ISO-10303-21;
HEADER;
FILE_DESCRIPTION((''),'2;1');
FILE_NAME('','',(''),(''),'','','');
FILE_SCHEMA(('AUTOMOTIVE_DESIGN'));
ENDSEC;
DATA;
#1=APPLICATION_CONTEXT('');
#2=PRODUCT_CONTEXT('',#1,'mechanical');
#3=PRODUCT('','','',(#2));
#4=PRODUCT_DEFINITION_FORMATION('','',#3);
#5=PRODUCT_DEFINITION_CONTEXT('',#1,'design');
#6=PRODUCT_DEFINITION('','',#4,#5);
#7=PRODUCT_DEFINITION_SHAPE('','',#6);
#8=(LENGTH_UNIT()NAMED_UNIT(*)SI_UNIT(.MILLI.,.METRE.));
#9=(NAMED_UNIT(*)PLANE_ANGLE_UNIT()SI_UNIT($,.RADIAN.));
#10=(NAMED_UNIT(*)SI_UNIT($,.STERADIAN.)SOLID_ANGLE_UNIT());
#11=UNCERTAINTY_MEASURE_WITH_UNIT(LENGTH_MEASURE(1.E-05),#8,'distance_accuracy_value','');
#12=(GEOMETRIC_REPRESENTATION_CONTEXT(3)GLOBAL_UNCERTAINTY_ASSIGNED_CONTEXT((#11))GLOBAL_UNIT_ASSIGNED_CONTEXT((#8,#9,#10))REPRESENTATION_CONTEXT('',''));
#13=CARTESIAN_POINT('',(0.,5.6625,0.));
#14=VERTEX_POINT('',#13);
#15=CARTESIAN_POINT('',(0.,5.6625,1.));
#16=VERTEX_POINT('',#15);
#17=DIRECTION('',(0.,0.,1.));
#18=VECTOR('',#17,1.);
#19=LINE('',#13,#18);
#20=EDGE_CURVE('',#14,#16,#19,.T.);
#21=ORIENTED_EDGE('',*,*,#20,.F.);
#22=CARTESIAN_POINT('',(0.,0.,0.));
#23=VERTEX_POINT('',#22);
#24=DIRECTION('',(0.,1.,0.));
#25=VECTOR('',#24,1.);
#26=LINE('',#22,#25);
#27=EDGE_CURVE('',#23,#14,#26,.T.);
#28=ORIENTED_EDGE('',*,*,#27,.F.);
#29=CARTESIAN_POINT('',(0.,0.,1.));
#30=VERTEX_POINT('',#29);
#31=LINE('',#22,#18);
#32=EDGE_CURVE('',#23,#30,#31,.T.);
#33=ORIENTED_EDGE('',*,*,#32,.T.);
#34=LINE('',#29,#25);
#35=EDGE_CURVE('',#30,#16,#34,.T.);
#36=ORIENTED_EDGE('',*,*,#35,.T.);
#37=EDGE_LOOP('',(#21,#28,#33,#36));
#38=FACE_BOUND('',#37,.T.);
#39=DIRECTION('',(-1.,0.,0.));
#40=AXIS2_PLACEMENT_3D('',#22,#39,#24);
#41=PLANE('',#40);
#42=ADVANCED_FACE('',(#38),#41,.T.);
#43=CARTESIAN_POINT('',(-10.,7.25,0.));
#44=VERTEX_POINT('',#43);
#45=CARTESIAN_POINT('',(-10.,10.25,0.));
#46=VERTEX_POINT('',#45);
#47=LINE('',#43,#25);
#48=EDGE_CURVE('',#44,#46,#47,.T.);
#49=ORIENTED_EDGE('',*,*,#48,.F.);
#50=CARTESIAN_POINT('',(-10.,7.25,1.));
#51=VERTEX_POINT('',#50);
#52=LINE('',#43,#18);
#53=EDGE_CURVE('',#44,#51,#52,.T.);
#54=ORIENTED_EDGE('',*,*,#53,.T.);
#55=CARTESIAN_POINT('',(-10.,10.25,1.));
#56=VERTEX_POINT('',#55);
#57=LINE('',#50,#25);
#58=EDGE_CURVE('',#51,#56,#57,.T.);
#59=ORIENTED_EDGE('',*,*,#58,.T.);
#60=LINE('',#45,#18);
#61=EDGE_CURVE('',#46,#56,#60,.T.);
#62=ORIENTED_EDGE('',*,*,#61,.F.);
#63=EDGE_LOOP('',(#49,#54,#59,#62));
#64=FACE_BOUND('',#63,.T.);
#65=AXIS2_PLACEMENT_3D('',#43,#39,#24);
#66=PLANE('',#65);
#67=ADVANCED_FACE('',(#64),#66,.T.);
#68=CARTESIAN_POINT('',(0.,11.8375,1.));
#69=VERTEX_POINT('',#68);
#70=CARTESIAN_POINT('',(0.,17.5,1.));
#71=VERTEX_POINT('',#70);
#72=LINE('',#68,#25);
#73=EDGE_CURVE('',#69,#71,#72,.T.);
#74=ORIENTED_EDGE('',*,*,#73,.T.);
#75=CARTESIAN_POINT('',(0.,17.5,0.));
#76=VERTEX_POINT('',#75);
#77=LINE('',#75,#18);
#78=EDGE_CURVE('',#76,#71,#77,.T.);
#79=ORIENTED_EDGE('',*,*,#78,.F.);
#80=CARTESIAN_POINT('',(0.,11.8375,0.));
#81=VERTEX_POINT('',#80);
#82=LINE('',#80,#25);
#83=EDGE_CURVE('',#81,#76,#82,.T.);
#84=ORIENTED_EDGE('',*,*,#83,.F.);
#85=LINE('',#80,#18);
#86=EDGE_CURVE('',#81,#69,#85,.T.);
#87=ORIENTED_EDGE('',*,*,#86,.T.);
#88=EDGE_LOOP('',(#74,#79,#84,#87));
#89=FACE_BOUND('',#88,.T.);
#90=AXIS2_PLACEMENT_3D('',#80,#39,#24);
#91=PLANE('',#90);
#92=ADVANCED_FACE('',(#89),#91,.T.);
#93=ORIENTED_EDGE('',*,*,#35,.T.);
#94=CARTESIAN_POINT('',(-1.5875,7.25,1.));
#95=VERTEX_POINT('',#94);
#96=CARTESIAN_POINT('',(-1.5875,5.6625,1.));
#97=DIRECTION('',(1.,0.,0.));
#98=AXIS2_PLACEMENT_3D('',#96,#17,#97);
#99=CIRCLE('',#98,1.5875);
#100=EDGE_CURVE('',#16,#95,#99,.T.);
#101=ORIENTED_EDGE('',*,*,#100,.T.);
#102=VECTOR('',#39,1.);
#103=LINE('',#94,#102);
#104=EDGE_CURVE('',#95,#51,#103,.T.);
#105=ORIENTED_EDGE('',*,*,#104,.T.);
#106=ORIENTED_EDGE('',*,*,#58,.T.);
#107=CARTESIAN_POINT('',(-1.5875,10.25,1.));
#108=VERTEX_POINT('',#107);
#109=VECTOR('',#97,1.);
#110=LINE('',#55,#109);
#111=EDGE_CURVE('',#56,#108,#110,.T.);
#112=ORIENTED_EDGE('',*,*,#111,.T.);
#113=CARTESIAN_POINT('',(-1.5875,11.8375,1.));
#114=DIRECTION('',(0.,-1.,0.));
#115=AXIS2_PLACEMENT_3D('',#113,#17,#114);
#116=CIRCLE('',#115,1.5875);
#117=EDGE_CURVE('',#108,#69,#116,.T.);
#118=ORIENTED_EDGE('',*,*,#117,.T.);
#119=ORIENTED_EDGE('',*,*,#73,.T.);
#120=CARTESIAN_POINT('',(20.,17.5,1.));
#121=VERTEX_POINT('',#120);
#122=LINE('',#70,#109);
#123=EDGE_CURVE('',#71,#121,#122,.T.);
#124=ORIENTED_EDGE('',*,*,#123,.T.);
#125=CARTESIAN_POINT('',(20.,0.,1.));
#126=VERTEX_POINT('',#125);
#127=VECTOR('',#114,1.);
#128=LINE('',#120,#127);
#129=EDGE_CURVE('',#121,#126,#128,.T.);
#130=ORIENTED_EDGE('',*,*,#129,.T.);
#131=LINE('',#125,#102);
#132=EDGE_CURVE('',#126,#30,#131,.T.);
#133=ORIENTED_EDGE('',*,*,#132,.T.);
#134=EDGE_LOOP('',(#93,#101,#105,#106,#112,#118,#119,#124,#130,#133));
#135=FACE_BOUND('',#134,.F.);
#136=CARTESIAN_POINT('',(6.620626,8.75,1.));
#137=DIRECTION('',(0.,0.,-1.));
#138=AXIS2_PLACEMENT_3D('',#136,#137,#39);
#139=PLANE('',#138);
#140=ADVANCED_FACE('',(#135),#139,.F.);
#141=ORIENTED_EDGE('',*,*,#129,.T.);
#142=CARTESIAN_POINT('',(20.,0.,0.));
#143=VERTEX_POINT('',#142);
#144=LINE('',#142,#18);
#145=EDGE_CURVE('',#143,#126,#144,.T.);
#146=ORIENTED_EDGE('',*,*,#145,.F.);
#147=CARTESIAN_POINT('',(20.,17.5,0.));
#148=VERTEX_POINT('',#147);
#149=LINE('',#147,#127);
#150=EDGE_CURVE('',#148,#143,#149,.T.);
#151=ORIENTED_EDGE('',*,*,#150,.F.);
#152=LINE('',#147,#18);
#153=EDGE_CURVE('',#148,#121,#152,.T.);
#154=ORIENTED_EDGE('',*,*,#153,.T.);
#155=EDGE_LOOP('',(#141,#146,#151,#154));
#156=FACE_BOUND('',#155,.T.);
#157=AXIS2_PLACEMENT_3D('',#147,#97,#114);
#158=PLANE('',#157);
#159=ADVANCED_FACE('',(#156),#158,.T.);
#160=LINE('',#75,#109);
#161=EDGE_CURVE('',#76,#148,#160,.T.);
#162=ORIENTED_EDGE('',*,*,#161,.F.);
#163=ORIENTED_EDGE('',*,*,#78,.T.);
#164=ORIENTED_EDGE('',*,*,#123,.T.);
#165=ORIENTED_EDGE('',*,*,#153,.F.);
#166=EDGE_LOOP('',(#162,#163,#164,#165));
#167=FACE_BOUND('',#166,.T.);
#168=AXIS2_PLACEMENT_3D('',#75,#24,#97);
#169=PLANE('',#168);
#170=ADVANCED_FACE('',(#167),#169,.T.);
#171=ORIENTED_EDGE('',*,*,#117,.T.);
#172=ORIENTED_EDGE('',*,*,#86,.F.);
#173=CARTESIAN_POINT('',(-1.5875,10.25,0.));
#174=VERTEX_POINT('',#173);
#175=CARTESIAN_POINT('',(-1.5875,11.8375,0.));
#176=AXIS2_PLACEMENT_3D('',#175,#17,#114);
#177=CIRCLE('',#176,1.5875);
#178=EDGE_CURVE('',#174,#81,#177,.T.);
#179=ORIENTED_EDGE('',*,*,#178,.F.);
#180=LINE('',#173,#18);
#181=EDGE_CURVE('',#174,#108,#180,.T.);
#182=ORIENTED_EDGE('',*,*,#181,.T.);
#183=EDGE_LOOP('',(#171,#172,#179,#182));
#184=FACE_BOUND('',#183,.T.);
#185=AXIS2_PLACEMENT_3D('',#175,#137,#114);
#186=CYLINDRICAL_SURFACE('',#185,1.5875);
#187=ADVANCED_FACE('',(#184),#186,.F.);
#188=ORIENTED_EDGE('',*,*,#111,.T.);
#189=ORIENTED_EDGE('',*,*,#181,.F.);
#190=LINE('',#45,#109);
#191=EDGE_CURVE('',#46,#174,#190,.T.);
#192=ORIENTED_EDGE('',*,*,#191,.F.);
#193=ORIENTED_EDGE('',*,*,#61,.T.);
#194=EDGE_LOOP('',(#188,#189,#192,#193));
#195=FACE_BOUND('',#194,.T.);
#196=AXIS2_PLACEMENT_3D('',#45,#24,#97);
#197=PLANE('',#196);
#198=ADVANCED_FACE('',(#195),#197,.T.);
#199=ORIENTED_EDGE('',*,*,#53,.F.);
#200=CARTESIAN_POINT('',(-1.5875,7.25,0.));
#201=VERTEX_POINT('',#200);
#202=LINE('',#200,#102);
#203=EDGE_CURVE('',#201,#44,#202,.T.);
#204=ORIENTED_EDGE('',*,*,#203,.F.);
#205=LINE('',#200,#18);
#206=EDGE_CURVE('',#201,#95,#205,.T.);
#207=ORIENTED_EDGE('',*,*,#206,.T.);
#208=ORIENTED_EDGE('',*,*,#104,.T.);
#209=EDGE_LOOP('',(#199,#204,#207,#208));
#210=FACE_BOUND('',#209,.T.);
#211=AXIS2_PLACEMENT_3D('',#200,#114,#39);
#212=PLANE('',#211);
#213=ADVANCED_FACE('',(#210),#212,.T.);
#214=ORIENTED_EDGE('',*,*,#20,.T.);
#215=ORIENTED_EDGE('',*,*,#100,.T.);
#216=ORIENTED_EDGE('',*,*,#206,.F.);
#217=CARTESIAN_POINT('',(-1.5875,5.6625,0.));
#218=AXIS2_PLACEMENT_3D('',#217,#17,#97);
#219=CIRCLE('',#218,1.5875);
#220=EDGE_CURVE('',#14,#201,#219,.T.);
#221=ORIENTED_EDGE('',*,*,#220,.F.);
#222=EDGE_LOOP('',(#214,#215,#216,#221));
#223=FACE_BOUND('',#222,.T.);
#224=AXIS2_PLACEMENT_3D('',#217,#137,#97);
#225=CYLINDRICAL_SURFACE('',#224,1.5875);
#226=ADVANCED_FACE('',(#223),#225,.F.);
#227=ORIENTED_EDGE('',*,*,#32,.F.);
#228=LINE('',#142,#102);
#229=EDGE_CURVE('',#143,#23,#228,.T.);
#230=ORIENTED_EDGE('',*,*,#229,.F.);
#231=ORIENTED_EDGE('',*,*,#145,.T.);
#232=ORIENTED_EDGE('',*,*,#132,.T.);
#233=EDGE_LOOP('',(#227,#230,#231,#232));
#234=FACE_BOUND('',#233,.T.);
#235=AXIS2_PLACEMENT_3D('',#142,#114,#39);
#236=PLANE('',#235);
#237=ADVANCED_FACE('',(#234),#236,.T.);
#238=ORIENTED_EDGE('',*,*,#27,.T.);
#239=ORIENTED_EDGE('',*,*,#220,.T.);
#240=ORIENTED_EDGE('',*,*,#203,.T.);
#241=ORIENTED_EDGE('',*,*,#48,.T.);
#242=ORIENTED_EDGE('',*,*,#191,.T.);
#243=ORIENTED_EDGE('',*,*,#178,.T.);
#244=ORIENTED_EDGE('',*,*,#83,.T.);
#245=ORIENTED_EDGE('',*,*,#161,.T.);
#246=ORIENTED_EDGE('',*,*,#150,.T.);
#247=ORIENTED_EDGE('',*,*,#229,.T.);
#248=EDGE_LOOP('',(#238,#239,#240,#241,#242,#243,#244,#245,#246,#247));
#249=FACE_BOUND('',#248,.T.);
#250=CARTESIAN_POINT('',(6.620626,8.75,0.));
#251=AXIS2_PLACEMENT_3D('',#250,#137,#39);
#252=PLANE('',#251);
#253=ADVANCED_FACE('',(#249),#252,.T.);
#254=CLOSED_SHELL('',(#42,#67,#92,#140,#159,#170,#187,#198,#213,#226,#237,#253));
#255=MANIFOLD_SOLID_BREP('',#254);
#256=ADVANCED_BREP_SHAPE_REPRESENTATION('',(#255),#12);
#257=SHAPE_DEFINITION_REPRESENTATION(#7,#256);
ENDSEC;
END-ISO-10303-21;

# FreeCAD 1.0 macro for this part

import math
import FreeCAD as App
import Part
import Sketcher

doc = App.newDocument("Part")
body = doc.addObject("PartDesign::Body", "Body")

sketch1 = doc.addObject("Sketcher::SketchObject", "Sketch")
body.addObject(sketch1)
sketch1.AttachmentSupport = (doc.XY_Plane, [""])
sketch1.MapMode = "FlatFace"
sketch1.addGeometry([
    Part.LineSegment(App.Vector(0, 17.5, 0), App.Vector(0, 11.8, 0)),
    Part.ArcOfCircle(Part.Circle(App.Vector(-1.6, 11.8, 0), App.Vector(0, 0, 1), 1.6), math.radians(-90), math.radians(0)),
    Part.LineSegment(App.Vector(-1.6, 10.2, 0), App.Vector(-10, 10.2, 0)),
    Part.LineSegment(App.Vector(-10, 10.2, 0), App.Vector(-10, 7.2, 0)),
    Part.LineSegment(App.Vector(-10, 7.2, 0), App.Vector(-1.6, 7.2, 0)),
    Part.ArcOfCircle(Part.Circle(App.Vector(-1.6, 5.7, 0), App.Vector(0, 0, 1), 1.6), math.radians(0), math.radians(90)),
    Part.LineSegment(App.Vector(0, 5.7, 0), App.Vector(0, 0, 0)),
    Part.LineSegment(App.Vector(0, 0, 0), App.Vector(20, 0, 0)),
    Part.LineSegment(App.Vector(20, 0, 0), App.Vector(20, 17.5, 0)),
    Part.LineSegment(App.Vector(20, 17.5, 0), App.Vector(0, 17.5, 0)),
], False)
sketch1.addConstraint([
    Sketcher.Constraint("Tangent", 0, 2, 1, 2),
    Sketcher.Constraint("Tangent", 1, 1, 2, 1),
    Sketcher.Constraint("Coincident", 2, 2, 3, 1),
    Sketcher.Constraint("Coincident", 3, 2, 4, 1),
    Sketcher.Constraint("Tangent", 4, 2, 5, 2),
    Sketcher.Constraint("Tangent", 5, 1, 6, 1),
    Sketcher.Constraint("Coincident", 6, 2, 7, 1),
    Sketcher.Constraint("Coincident", 7, 2, 8, 1),
    Sketcher.Constraint("Coincident", 8, 2, 9, 1),
    Sketcher.Constraint("Coincident", 9, 2, 0, 1),
    Sketcher.Constraint("Vertical", 0),
    Sketcher.Constraint("Horizontal", 2),
    Sketcher.Constraint("Vertical", 3),
    Sketcher.Constraint("Horizontal", 4),
    Sketcher.Constraint("Vertical", 6),
    Sketcher.Constraint("Horizontal", 7),
    Sketcher.Constraint("Vertical", 8),
    Sketcher.Constraint("Horizontal", 9),
    Sketcher.Constraint("Coincident", 6, 2, -1, 1),
    Sketcher.Constraint("Equal", 1, 5),
    Sketcher.Constraint("PointOnObject", 0, 2, -2),
    Sketcher.Constraint("Equal", 0, 6),
    Sketcher.Constraint("DistanceX", 7, 1, 7, 2, 20.0),
    Sketcher.Constraint("DistanceY", 3, 2, 3, 1, 3.0),
    Sketcher.Constraint("DistanceY", 8, 1, 8, 2, 17.5),
    Sketcher.Constraint("DistanceX", 2, 2, -1, 1, 10.0),
    Sketcher.Constraint("Radius", 1, 1.5875),
])
pad1 = doc.addObject("PartDesign::Pad", "Pad")
body.addObject(pad1)
pad1.Profile = sketch1
pad1.Length = 1

doc.recompute()
